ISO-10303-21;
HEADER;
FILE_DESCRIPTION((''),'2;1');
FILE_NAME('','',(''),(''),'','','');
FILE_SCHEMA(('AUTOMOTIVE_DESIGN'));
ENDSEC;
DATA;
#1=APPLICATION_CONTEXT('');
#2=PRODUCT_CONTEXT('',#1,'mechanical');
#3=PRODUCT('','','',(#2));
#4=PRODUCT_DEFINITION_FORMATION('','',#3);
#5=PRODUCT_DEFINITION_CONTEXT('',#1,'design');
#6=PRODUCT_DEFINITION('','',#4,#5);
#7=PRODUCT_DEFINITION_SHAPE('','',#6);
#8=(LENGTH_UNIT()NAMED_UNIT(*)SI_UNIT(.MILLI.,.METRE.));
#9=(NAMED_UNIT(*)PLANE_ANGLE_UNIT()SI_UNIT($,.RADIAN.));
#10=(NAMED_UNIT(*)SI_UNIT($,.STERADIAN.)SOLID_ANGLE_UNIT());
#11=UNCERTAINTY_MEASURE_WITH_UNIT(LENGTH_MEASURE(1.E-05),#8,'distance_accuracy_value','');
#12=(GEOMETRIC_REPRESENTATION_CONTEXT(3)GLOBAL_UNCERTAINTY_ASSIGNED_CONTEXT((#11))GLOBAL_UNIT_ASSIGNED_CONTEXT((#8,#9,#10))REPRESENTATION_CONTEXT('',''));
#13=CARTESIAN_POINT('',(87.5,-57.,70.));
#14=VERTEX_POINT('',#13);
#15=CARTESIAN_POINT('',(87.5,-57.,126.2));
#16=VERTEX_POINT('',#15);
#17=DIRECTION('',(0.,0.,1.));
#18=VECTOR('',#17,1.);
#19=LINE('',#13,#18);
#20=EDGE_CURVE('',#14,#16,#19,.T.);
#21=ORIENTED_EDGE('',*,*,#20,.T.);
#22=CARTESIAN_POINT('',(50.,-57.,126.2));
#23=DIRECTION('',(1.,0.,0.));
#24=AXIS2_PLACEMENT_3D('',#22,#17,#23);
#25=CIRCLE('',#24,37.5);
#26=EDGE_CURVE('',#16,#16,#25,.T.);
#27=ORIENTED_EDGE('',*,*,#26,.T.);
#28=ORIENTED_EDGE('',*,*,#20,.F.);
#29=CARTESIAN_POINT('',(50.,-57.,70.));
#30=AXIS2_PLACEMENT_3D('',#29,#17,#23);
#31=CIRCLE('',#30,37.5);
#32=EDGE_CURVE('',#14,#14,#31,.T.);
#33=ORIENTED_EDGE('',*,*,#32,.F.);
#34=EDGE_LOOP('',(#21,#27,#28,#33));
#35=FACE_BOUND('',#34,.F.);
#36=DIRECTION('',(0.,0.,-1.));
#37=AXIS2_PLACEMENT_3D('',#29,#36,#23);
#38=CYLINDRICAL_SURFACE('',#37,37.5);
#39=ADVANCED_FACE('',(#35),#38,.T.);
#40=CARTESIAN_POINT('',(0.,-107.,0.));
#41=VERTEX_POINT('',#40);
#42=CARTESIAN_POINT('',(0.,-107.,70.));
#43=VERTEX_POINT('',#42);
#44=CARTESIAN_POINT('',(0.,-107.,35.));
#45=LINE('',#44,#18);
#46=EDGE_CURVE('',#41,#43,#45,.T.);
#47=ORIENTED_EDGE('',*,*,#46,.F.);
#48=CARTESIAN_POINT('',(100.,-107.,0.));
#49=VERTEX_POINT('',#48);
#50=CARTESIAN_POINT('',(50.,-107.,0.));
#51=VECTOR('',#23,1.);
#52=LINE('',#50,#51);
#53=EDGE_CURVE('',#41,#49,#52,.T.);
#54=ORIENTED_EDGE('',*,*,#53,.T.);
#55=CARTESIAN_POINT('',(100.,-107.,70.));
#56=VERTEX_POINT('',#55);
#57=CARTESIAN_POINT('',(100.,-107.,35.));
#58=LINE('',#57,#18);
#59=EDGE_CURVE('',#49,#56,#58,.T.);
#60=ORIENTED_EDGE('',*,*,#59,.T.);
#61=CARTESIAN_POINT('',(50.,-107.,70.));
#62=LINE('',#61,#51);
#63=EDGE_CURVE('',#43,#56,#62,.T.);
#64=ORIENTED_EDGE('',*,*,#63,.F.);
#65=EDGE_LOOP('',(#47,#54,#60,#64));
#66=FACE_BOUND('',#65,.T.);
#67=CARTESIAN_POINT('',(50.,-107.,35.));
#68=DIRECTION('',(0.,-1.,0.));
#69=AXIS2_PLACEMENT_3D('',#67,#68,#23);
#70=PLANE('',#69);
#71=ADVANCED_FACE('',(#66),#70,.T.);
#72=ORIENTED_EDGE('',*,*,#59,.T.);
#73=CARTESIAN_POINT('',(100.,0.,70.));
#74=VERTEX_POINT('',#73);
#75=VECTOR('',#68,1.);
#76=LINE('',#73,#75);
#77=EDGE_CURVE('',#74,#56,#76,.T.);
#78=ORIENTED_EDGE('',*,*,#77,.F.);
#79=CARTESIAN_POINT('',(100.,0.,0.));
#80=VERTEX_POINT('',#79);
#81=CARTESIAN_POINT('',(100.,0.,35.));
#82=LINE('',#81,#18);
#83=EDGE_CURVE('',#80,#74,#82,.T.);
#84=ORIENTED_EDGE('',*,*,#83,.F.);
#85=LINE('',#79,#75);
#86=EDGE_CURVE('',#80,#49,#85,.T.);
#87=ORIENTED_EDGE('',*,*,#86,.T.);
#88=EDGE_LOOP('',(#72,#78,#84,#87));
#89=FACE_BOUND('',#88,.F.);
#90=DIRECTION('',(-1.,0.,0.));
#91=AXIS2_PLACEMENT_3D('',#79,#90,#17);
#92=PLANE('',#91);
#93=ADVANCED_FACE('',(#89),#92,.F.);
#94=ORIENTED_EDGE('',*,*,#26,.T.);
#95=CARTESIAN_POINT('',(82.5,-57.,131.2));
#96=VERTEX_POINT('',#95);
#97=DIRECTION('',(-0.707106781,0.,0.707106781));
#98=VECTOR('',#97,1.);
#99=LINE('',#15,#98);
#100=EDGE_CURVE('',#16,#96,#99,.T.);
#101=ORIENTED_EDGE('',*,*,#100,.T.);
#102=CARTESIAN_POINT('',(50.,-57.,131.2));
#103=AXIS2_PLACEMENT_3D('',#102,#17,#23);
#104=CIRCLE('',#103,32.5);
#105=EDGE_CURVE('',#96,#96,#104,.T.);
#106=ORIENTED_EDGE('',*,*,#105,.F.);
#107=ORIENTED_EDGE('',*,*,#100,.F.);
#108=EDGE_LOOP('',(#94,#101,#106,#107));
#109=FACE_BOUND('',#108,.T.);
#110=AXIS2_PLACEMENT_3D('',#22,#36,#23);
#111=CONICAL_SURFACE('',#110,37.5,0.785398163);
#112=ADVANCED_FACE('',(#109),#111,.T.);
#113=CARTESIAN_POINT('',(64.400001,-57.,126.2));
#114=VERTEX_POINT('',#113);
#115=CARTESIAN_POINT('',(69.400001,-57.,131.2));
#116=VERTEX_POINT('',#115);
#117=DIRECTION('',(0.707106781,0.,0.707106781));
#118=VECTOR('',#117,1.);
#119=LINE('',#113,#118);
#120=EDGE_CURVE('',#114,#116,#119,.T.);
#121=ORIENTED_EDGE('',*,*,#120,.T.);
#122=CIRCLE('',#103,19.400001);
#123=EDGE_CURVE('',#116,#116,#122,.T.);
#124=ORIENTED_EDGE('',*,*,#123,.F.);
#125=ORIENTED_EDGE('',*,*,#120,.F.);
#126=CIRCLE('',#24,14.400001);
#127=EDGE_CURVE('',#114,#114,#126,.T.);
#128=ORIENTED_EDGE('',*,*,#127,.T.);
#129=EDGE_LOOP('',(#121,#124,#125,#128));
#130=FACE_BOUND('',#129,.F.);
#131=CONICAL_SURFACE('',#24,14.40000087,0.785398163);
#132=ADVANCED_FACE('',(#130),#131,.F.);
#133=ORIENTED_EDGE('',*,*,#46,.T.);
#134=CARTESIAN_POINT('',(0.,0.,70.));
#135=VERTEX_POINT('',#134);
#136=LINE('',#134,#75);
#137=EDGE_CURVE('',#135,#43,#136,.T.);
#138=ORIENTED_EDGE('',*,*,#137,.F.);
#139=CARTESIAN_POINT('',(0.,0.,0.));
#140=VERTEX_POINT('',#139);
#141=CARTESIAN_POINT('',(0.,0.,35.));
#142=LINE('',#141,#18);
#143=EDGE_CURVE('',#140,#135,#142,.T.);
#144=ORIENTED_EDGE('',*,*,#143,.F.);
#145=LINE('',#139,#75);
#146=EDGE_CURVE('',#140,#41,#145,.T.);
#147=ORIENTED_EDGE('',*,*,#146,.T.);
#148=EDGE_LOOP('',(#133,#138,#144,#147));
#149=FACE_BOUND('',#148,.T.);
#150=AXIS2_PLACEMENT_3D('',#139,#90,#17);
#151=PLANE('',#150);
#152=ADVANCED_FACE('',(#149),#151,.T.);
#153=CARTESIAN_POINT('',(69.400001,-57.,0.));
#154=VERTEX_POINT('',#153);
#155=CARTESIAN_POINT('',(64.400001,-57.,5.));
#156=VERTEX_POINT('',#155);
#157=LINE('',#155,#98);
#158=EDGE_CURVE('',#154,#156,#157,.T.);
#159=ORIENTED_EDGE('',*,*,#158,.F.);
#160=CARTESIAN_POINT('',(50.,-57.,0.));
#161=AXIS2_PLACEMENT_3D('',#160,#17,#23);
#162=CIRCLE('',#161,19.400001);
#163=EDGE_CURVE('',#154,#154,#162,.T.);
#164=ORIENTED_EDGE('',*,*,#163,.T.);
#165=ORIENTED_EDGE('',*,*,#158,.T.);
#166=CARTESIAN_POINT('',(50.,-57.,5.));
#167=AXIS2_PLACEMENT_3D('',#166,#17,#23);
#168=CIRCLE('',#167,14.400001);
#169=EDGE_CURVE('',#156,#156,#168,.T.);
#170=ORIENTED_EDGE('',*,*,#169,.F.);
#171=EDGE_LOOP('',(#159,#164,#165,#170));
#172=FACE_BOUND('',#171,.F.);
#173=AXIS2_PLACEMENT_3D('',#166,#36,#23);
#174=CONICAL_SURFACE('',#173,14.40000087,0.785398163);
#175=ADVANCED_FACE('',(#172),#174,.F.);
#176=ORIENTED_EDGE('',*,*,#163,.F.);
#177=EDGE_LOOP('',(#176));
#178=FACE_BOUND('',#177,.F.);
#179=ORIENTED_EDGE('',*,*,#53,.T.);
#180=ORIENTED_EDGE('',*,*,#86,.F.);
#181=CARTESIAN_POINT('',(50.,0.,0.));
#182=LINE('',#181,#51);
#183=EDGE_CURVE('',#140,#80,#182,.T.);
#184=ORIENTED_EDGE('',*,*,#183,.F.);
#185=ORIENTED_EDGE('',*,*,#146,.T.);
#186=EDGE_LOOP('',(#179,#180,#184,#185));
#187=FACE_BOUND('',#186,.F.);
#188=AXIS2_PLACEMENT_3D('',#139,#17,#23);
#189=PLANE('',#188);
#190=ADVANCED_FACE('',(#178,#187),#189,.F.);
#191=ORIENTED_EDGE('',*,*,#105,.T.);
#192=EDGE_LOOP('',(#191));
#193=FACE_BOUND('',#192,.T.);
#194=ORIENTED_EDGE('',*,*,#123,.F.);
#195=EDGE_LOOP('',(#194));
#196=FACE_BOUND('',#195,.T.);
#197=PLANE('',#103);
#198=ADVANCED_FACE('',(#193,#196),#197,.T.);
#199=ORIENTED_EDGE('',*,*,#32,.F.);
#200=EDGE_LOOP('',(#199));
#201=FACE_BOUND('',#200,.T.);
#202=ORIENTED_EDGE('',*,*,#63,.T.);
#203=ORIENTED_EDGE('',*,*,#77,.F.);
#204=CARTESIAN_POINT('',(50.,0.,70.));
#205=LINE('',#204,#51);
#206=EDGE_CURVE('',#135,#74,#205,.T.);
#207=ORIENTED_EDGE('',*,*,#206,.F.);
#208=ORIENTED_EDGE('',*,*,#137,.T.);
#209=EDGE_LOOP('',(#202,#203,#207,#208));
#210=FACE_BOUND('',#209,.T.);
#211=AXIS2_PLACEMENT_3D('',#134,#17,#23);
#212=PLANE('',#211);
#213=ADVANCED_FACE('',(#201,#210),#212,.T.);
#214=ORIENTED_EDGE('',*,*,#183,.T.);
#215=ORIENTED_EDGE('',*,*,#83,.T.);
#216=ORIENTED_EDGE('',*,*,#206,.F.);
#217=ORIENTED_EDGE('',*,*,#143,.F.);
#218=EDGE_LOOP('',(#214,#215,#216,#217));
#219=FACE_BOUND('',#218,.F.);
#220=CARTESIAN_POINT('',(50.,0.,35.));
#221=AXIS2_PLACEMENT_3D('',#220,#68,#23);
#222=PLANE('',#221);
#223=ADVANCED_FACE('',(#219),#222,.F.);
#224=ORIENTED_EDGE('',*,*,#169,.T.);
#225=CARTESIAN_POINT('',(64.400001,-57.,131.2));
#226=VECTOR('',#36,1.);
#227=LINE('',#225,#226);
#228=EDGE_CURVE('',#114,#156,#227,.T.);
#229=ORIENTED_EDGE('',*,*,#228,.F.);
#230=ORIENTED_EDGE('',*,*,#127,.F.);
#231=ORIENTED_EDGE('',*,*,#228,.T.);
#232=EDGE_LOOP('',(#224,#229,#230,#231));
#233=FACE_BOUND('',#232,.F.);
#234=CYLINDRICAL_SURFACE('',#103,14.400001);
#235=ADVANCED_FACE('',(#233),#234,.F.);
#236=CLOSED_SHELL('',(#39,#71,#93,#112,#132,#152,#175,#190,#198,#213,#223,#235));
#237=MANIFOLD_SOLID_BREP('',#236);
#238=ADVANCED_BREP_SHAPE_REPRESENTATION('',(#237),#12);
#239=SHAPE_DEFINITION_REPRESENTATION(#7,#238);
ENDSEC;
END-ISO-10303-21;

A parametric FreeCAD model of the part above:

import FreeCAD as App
import Part
import Sketcher
from FreeCAD import Vector
Q = App.Units.Quantity


def edges_at(feature, points):
    """Names of the edges that pass closest to the given points."""
    edges = feature.Shape.Edges
    near = lambda p: min(range(len(edges)), key=lambda i: edges[i].distToShape(Part.Vertex(*p))[0])
    return sorted({f"Edge{near(p) + 1}" for p in points})

doc = App.newDocument("Part")
body = doc.addObject("PartDesign::Body", "Body")

# Sketch on XZ plane
sketch1 = body.newObject("Sketcher::SketchObject", "Sketch")
sketch1.AttachmentSupport = (doc.getObject("XZ_Plane"), [""])
sketch1.MapMode = "FlatFace"
sketch1.addGeometry([
    Part.LineSegment(Vector(0, 70, 0), Vector(0, 0, 0)),
    Part.LineSegment(Vector(0, 0, 0), Vector(100, 0, 0)),
    Part.LineSegment(Vector(100, 0, 0), Vector(100, 70, 0)),
    Part.LineSegment(Vector(100, 70, 0), Vector(0, 70, 0)),
], False)
sketch1.addConstraint([
    Sketcher.Constraint("Coincident", 0, 2, 1, 1),
    Sketcher.Constraint("Coincident", 1, 2, 2, 1),
    Sketcher.Constraint("Coincident", 2, 2, 3, 1),
    Sketcher.Constraint("Coincident", 3, 2, 0, 1),
    Sketcher.Constraint("Vertical", 0),
    Sketcher.Constraint("Horizontal", 1),
    Sketcher.Constraint("Vertical", 2),
    Sketcher.Constraint("Horizontal", 3),
    Sketcher.Constraint("Coincident", 0, 2, -1, 1),
    Sketcher.Constraint("DistanceX", 1, 1, 1, 2, Q("100 mm")),
    Sketcher.Constraint("DistanceY", 0, 2, 0, 1, Q("70 mm")),
])
pad1 = body.newObject("PartDesign::Pad", "Pad")
pad1.Profile = sketch1
pad1.Length = 107

# Sketch on XY plane
sketch2 = body.newObject("Sketcher::SketchObject", "Sketch001")
sketch2.AttachmentSupport = (doc.getObject("XY_Plane"), [""])
sketch2.MapMode = "FlatFace"
sketch2.AttachmentOffset = App.Placement(Vector(0, 0, 70), App.Rotation())
sketch2.addGeometry(Part.Circle(Vector(50, -57, 0), Vector(0, 0, 1), 37.5), False)
sketch2.addConstraint([
    Sketcher.Constraint("Diameter", 0, Q("75 mm")),
    Sketcher.Constraint("DistanceX", -1, 1, 0, 3, Q("50 mm")),
    Sketcher.Constraint("DistanceY", 0, 3, -1, 1, Q("57 mm")),
])
pad2 = body.newObject("PartDesign::Pad", "Pad001")
pad2.Profile = sketch2
pad2.Length = 61.2

# Sketch on XY plane
sketch3 = body.newObject("Sketcher::SketchObject", "Sketch002")
sketch3.AttachmentSupport = (doc.getObject("XY_Plane"), [""])
sketch3.MapMode = "FlatFace"
sketch3.AttachmentOffset = App.Placement(Vector(0, 0, 131.2), App.Rotation())
sketch3.addGeometry(Part.Circle(Vector(50, -57, 0), Vector(0, 0, 1), 14.400001), False)
sketch3.addConstraint([
    Sketcher.Constraint("Diameter", 0, Q("28.800002 mm")),
    Sketcher.Constraint("DistanceX", -1, 1, 0, 3, Q("50 mm")),
    Sketcher.Constraint("DistanceY", 0, 3, -1, 1, Q("57 mm")),
])
pocket1 = body.newObject("PartDesign::Pocket", "Pocket")
pocket1.Profile = sketch3
pocket1.Type = "ThroughAll"
doc.recompute()

chamfer = body.newObject("PartDesign::Chamfer", "Chamfer")
chamfer.Base = (pocket1, edges_at(pocket1, [(12.5, -57, 131.2), (35.6, -57, 131.2), (35.6, -57, 0)]))
chamfer.Size = 5

doc.recompute()
